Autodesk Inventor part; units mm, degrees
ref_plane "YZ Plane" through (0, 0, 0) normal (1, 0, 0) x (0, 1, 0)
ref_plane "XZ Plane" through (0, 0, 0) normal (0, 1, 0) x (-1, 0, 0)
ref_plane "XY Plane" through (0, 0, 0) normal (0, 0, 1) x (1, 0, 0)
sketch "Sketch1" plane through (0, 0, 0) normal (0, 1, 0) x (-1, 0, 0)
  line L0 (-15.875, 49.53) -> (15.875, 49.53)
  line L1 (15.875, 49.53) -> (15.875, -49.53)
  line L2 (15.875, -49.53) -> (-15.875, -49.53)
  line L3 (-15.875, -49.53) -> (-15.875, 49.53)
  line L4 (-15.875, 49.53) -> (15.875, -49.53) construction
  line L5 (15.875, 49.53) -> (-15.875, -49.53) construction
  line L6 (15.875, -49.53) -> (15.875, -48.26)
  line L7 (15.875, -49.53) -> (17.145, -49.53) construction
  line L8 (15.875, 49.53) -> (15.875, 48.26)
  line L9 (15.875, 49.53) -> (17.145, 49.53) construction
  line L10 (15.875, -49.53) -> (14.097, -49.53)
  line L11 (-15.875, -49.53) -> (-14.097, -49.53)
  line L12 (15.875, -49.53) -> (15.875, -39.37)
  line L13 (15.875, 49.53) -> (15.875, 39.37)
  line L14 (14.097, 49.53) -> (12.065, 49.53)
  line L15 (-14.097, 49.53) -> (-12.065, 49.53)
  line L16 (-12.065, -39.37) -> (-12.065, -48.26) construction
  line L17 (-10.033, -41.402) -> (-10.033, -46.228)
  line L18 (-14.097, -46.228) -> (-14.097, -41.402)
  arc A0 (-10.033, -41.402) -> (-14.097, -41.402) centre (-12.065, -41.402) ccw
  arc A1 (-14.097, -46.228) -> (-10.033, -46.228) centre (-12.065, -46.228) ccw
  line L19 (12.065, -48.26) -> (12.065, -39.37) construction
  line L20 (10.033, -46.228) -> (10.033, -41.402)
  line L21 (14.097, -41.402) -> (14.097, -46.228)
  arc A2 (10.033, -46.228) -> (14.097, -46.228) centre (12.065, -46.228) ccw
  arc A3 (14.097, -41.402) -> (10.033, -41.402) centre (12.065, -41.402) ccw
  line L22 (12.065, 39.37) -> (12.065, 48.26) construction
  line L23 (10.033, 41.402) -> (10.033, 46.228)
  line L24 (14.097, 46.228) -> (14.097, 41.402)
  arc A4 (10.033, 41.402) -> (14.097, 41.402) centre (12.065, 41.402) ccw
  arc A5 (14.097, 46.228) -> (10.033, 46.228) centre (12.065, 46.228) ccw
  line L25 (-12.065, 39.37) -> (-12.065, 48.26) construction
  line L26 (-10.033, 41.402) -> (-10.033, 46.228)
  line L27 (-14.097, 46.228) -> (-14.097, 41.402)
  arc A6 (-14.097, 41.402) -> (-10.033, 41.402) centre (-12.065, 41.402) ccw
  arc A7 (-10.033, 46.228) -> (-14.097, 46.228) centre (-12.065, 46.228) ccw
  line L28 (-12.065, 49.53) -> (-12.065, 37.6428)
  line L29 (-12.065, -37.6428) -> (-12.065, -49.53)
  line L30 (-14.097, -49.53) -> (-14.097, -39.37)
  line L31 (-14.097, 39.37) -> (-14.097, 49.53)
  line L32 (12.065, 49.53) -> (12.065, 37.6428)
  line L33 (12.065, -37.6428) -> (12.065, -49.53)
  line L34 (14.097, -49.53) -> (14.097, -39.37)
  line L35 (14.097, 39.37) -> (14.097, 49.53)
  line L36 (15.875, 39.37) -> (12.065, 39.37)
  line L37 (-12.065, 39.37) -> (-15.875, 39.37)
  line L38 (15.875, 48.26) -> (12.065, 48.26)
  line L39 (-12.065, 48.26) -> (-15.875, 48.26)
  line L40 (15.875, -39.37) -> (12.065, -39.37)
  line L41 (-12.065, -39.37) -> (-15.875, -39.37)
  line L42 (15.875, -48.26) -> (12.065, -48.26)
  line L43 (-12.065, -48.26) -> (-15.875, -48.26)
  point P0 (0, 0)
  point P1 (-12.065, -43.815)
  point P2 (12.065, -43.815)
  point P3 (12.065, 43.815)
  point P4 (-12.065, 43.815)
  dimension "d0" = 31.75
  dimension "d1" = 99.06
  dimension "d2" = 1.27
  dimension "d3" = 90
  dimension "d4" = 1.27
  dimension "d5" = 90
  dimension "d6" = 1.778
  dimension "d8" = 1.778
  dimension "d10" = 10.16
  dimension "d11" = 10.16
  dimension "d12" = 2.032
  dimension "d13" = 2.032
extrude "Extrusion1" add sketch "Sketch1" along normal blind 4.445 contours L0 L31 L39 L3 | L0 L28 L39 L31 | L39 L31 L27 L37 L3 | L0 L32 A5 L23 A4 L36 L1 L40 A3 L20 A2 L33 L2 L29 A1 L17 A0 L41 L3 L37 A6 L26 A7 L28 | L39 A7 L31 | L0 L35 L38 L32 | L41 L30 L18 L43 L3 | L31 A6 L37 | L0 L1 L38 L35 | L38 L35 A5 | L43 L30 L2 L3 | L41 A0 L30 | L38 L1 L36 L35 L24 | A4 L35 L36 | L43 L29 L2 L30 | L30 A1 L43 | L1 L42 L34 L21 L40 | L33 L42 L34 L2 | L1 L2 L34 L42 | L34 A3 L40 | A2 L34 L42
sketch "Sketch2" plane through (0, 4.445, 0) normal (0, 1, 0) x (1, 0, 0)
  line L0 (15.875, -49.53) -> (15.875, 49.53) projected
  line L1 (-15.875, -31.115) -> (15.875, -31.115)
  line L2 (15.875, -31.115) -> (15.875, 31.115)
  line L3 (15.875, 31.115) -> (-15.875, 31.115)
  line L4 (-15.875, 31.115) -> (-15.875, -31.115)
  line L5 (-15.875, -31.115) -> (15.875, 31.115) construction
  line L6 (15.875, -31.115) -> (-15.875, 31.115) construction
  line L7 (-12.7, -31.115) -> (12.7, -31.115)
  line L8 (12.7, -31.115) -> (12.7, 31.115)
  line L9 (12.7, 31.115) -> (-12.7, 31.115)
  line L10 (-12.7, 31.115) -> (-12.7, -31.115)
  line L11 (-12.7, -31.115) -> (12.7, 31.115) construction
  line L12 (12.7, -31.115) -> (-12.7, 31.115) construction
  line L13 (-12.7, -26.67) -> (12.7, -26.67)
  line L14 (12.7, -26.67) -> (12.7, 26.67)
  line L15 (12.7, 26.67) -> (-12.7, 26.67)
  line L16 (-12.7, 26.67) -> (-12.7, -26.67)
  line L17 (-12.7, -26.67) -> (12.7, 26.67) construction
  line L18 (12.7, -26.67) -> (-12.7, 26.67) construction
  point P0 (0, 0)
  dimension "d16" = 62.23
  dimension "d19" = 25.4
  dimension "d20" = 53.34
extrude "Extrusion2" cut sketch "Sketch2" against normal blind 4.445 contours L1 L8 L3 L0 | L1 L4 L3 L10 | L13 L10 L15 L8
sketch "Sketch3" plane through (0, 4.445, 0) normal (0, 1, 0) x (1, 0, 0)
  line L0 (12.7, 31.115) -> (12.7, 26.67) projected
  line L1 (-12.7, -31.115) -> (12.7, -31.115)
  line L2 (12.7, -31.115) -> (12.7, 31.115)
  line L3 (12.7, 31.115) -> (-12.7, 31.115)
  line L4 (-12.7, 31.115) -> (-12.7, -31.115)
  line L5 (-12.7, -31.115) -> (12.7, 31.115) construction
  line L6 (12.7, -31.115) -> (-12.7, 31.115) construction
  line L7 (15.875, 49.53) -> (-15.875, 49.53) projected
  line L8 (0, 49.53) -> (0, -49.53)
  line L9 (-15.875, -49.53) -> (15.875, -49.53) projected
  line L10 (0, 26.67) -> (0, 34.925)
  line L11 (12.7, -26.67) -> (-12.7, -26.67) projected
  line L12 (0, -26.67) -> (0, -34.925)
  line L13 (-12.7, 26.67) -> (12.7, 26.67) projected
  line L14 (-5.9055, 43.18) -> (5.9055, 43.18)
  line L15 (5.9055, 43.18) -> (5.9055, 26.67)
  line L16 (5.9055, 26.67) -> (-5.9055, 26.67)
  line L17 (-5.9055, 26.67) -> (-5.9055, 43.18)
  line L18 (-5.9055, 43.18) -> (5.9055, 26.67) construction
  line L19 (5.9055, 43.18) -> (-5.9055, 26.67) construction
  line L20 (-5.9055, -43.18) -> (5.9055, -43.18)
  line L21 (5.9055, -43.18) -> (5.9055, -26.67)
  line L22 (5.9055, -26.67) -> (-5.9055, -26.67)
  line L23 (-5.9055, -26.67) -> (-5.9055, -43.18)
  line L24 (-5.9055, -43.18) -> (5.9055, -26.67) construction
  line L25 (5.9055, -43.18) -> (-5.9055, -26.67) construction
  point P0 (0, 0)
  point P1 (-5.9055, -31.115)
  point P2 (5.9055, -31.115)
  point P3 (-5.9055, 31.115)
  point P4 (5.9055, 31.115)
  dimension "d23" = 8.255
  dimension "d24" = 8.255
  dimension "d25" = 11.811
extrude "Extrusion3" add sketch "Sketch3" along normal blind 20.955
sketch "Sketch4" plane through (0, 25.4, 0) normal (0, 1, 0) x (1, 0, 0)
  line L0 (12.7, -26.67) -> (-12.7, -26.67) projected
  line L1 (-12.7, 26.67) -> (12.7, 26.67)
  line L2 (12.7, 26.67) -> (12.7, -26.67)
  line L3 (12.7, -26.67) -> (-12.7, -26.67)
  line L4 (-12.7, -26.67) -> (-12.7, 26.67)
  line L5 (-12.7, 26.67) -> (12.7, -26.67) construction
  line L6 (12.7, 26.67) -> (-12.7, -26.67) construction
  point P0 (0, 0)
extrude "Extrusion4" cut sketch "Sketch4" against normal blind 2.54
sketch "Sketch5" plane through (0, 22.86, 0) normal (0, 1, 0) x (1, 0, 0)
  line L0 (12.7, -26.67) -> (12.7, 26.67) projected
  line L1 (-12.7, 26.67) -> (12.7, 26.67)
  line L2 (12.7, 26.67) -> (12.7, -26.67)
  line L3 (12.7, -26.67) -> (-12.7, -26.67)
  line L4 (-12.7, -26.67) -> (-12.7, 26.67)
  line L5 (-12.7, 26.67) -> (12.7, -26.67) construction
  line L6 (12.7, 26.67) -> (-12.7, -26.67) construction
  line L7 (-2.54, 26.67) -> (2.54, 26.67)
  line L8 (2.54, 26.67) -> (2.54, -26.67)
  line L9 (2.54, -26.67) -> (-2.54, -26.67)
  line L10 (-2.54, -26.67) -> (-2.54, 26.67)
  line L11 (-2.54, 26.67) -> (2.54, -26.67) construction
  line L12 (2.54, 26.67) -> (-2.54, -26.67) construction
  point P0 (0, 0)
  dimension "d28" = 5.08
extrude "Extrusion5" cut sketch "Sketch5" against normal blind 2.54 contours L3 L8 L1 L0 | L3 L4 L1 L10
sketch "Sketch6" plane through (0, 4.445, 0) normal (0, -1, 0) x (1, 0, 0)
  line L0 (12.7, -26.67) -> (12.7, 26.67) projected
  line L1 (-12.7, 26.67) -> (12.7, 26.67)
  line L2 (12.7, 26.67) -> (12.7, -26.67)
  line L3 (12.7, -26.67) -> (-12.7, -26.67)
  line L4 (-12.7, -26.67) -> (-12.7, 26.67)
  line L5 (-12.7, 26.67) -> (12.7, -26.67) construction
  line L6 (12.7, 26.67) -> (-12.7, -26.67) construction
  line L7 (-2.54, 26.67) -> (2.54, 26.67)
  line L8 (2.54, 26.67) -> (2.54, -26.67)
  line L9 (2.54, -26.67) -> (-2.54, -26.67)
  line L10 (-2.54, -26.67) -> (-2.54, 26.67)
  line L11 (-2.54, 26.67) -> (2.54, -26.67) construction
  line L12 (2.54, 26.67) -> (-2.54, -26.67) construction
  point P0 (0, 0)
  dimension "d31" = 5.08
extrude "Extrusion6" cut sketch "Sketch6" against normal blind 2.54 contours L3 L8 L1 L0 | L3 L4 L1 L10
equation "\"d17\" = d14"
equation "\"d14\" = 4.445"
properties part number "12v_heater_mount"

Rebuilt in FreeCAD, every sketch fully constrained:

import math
import FreeCAD as App
import Part
import Sketcher
from FreeCAD import Vector
Q = App.Units.Quantity

doc = App.newDocument("Part")
body = doc.addObject("PartDesign::Body", "Body")
body.AllowCompound = True

# Sketch on XZ plane
sketch1 = body.newObject("Sketcher::SketchObject", "Sketch")
sketch1.AttachmentSupport = (doc.getObject("XZ_Plane"), [""])
sketch1.MapMode = "FlatFace"
sketch1.addGeometry([
    Part.LineSegment(Vector(15.9, 49.5, 0), Vector(15.9, -49.5, 0)),  # 0
    Part.LineSegment(Vector(15.9, -49.5, 0), Vector(-15.9, -49.5, 0)),  # 1
    Part.LineSegment(Vector(-15.9, -49.5, 0), Vector(-15.9, 49.5, 0)),  # 2
    Part.LineSegment(Vector(-15.9, 49.5, 0), Vector(15.9, 49.5, 0)),  # 3
    Part.LineSegment(Vector(14.1, 41.4, 0), Vector(14.1, 46.2, 0)),  # 4
    Part.ArcOfCircle(Part.Circle(Vector(12.1, 46.2, 0), Vector(0, 0, 1), 2), math.radians(0), math.radians(180)),  # 5
    Part.LineSegment(Vector(10, 46.2, 0), Vector(10, 41.4, 0)),  # 6
    Part.ArcOfCircle(Part.Circle(Vector(12.1, 41.4, 0), Vector(0, 0, 1), 2), math.radians(180), math.radians(360)),  # 7
    Part.ArcOfCircle(Part.Circle(Vector(-12.1, 46.2, 0), Vector(0, 0, 1), 2), math.radians(0), math.radians(180)),  # 8
    Part.LineSegment(Vector(-14.1, 46.2, 0), Vector(-14.1, 41.4, 0)),  # 9
    Part.ArcOfCircle(Part.Circle(Vector(-12.1, 41.4, 0), Vector(0, 0, 1), 2), math.radians(180), math.radians(360)),  # 10
    Part.LineSegment(Vector(-10, 41.4, 0), Vector(-10, 46.2, 0)),  # 11
    Part.ArcOfCircle(Part.Circle(Vector(-12.1, -41.4, 0), Vector(0, 0, 1), 2), math.radians(0), math.radians(180)),  # 12
    Part.LineSegment(Vector(-14.1, -41.4, 0), Vector(-14.1, -46.2, 0)),  # 13
    Part.ArcOfCircle(Part.Circle(Vector(-12.1, -46.2, 0), Vector(0, 0, 1), 2), math.radians(180), math.radians(360)),  # 14
    Part.LineSegment(Vector(-10, -46.2, 0), Vector(-10, -41.4, 0)),  # 15
    Part.ArcOfCircle(Part.Circle(Vector(12.1, -46.2, 0), Vector(0, 0, 1), 2), math.radians(180), math.radians(360)),  # 16
    Part.LineSegment(Vector(14.1, -46.2, 0), Vector(14.1, -41.4, 0)),  # 17
    Part.ArcOfCircle(Part.Circle(Vector(12.1, -41.4, 0), Vector(0, 0, 1), 2), math.radians(0), math.radians(180)),  # 18
    Part.LineSegment(Vector(10, -41.4, 0), Vector(10, -46.2, 0)),  # 19
], False)
sketch1.addConstraint([
    Sketcher.Constraint("Coincident", 0, 2, 1, 1),
    Sketcher.Constraint("Coincident", 1, 2, 2, 1),
    Sketcher.Constraint("Coincident", 2, 2, 3, 1),
    Sketcher.Constraint("Coincident", 3, 2, 0, 1),
    Sketcher.Constraint("Tangent", 4, 2, 5, 1),
    Sketcher.Constraint("Tangent", 5, 2, 6, 1),
    Sketcher.Constraint("Tangent", 6, 2, 7, 1),
    Sketcher.Constraint("Tangent", 7, 2, 4, 1),
    Sketcher.Constraint("Tangent", 8, 2, 9, 1),
    Sketcher.Constraint("Tangent", 9, 2, 10, 1),
    Sketcher.Constraint("Tangent", 10, 2, 11, 1),
    Sketcher.Constraint("Tangent", 11, 2, 8, 1),
    Sketcher.Constraint("Tangent", 12, 2, 13, 1),
    Sketcher.Constraint("Tangent", 13, 2, 14, 1),
    Sketcher.Constraint("Tangent", 14, 2, 15, 1),
    Sketcher.Constraint("Tangent", 15, 2, 12, 1),
    Sketcher.Constraint("Tangent", 16, 2, 17, 1),
    Sketcher.Constraint("Tangent", 17, 2, 18, 1),
    Sketcher.Constraint("Tangent", 18, 2, 19, 1),
    Sketcher.Constraint("Tangent", 19, 2, 16, 1),
    Sketcher.Constraint("Vertical", 0),
    Sketcher.Constraint("Horizontal", 1),
    Sketcher.Constraint("Vertical", 2),
    Sketcher.Constraint("Horizontal", 3),
    Sketcher.Constraint("Vertical", 4),
    Sketcher.Constraint("Vertical", 6),
    Sketcher.Constraint("Vertical", 9),
    Sketcher.Constraint("Vertical", 11),
    Sketcher.Constraint("Vertical", 13),
    Sketcher.Constraint("Vertical", 15),
    Sketcher.Constraint("Vertical", 17),
    Sketcher.Constraint("Vertical", 19),
    Sketcher.Constraint("Equal", 7, 8),
    Sketcher.Constraint("Equal", 10, 12),
    Sketcher.Constraint("Equal", 14, 16),
    Sketcher.Constraint("Symmetric", 7, 3, 12, 3, -1, 1),
    Sketcher.Constraint("Symmetric", 8, 3, 16, 3, -1, 1),
    Sketcher.Constraint("Symmetric", 0, 2, 2, 2, -1, 1),
    Sketcher.Constraint("Symmetric", 5, 3, 8, 3, -2),
    Sketcher.Constraint("Horizontal", 7, 3, 10, 3),
    Sketcher.Constraint("Horizontal", 14, 3, 16, 3),
    Sketcher.Constraint("Horizontal", 12, 3, 18, 3),
    Sketcher.Constraint("Radius", 5, Q("0.08 in")),
    Sketcher.Constraint("DistanceY", 0, 2, 0, 1, Q("3.9 in")),
    Sketcher.Constraint("DistanceX", 1, 2, 1, 1, Q("1.25 in")),
    Sketcher.Constraint("DistanceX", 4, 2, 3, 2, Q("0.07 in")),
    Sketcher.Constraint("DistanceY", 4, 1, 4, 2, Q("0.19 in")),
    Sketcher.Constraint("DistanceY", -1, 1, 5, 3, Q("1.82 in")),
])
pad1 = body.newObject("PartDesign::Pad", "Pad")
pad1.Profile = sketch1
pad1.Length = Q("0.175 in")
pad1.Reversed = True

# Sketch on XZ plane
sketch2 = body.newObject("Sketcher::SketchObject", "Sketch001")
sketch2.AttachmentSupport = (doc.getObject("XZ_Plane"), [""])
sketch2.MapMode = "FlatFace"
sketch2.AttachmentOffset = App.Placement(Vector(0, 0, -0.175 * 25.4), App.Rotation())
sketch2.addGeometry([
    Part.LineSegment(Vector(12.7, 31.1, 0), Vector(15.9, 31.1, 0)),  # 0
    Part.LineSegment(Vector(15.9, 31.1, 0), Vector(15.9, -31.1, 0)),  # 1
    Part.LineSegment(Vector(15.9, -31.1, 0), Vector(12.7, -31.1, 0)),  # 2
    Part.LineSegment(Vector(12.7, -31.1, 0), Vector(12.7, -26.7, 0)),  # 3
    Part.LineSegment(Vector(12.7, -26.7, 0), Vector(-12.7, -26.7, 0)),  # 4
    Part.LineSegment(Vector(-12.7, -26.7, 0), Vector(-12.7, -31.1, 0)),  # 5
    Part.LineSegment(Vector(-12.7, -31.1, 0), Vector(-15.9, -31.1, 0)),  # 6
    Part.LineSegment(Vector(-15.9, -31.1, 0), Vector(-15.9, 31.1, 0)),  # 7
    Part.LineSegment(Vector(-15.9, 31.1, 0), Vector(-12.7, 31.1, 0)),  # 8
    Part.LineSegment(Vector(-12.7, 31.1, 0), Vector(-12.7, 26.7, 0)),  # 9
    Part.LineSegment(Vector(-12.7, 26.7, 0), Vector(12.7, 26.7, 0)),  # 10
    Part.LineSegment(Vector(12.7, 26.7, 0), Vector(12.7, 31.1, 0)),  # 11
], False)
sketch2.addConstraint([
    Sketcher.Constraint("Coincident", 0, 2, 1, 1),
    Sketcher.Constraint("Coincident", 1, 2, 2, 1),
    Sketcher.Constraint("Coincident", 2, 2, 3, 1),
    Sketcher.Constraint("Coincident", 3, 2, 4, 1),
    Sketcher.Constraint("Coincident", 4, 2, 5, 1),
    Sketcher.Constraint("Coincident", 5, 2, 6, 1),
    Sketcher.Constraint("Coincident", 6, 2, 7, 1),
    Sketcher.Constraint("Coincident", 7, 2, 8, 1),
    Sketcher.Constraint("Coincident", 8, 2, 9, 1),
    Sketcher.Constraint("Coincident", 9, 2, 10, 1),
    Sketcher.Constraint("Coincident", 10, 2, 11, 1),
    Sketcher.Constraint("Coincident", 11, 2, 0, 1),
    Sketcher.Constraint("Horizontal", 0),
    Sketcher.Constraint("Vertical", 1),
    Sketcher.Constraint("Horizontal", 2),
    Sketcher.Constraint("Vertical", 3),
    Sketcher.Constraint("Horizontal", 4),
    Sketcher.Constraint("Vertical", 5),
    Sketcher.Constraint("Horizontal", 6),
    Sketcher.Constraint("Vertical", 7),
    Sketcher.Constraint("Horizontal", 8),
    Sketcher.Constraint("Vertical", 9),
    Sketcher.Constraint("Horizontal", 10),
    Sketcher.Constraint("Vertical", 11),
    Sketcher.Constraint("Symmetric", 0, 2, 6, 2, -1, 1),
    Sketcher.Constraint("Symmetric", 2, 2, 8, 2, -1, 1),
    Sketcher.Constraint("Symmetric", 4, 2, 10, 2, -1, 1),
    Sketcher.Constraint("Symmetric", 2, 2, 5, 2, -2),
    Sketcher.Constraint("DistanceX", 4, 2, 4, 1, Q("1 in")),
    Sketcher.Constraint("DistanceY", 1, 2, 1, 1, Q("2.45 in")),
    Sketcher.Constraint("DistanceY", 4, 2, 9, 2, Q("2.1 in")),
    Sketcher.Constraint("DistanceX", 0, 1, 0, 2, Q("0.125 in")),
])
pocket1 = body.newObject("PartDesign::Pocket", "Pocket")
pocket1.Profile = sketch2
pocket1.Length = Q("0.175 in")
pocket1.Reversed = True

# Sketch on XZ plane
sketch3 = body.newObject("Sketcher::SketchObject", "Sketch002")
sketch3.AttachmentSupport = (doc.getObject("XZ_Plane"), [""])
sketch3.MapMode = "FlatFace"
sketch3.AttachmentOffset = App.Placement(Vector(0, 0, -0.175 * 25.4), App.Rotation())
sketch3.addGeometry([
    Part.LineSegment(Vector(13, -31, 0), Vector(6, -31, 0)),  # 0
    Part.LineSegment(Vector(6, -31, 0), Vector(6, -43, 0)),  # 1
    Part.LineSegment(Vector(6, -43, 0), Vector(-6, -43, 0)),  # 2
    Part.LineSegment(Vector(-6, -43, 0), Vector(-6, -31, 0)),  # 3
    Part.LineSegment(Vector(-6, -31, 0), Vector(-13, -31, 0)),  # 4
    Part.LineSegment(Vector(-13, -31, 0), Vector(-13, 31, 0)),  # 5
    Part.LineSegment(Vector(-13, 31, 0), Vector(-6, 31, 0)),  # 6
    Part.LineSegment(Vector(-6, 31, 0), Vector(-6, 43, 0)),  # 7
    Part.LineSegment(Vector(-6, 43, 0), Vector(6, 43, 0)),  # 8
    Part.LineSegment(Vector(6, 43, 0), Vector(6, 31, 0)),  # 9
    Part.LineSegment(Vector(6, 31, 0), Vector(13, 31, 0)),  # 10
    Part.LineSegment(Vector(13, 31, 0), Vector(13, -31, 0)),  # 11
], False)
sketch3.addConstraint([
    Sketcher.Constraint("Coincident", 0, 2, 1, 1),
    Sketcher.Constraint("Coincident", 1, 2, 2, 1),
    Sketcher.Constraint("Coincident", 2, 2, 3, 1),
    Sketcher.Constraint("Coincident", 3, 2, 4, 1),
    Sketcher.Constraint("Coincident", 4, 2, 5, 1),
    Sketcher.Constraint("Coincident", 5, 2, 6, 1),
    Sketcher.Constraint("Coincident", 6, 2, 7, 1),
    Sketcher.Constraint("Coincident", 7, 2, 8, 1),
    Sketcher.Constraint("Coincident", 8, 2, 9, 1),
    Sketcher.Constraint("Coincident", 9, 2, 10, 1),
    Sketcher.Constraint("Coincident", 10, 2, 11, 1),
    Sketcher.Constraint("Coincident", 11, 2, 0, 1),
    Sketcher.Constraint("Horizontal", 0),
    Sketcher.Constraint("Vertical", 1),
    Sketcher.Constraint("Horizontal", 2),
    Sketcher.Constraint("Vertical", 3),
    Sketcher.Constraint("Horizontal", 4),
    Sketcher.Constraint("Vertical", 5),
    Sketcher.Constraint("Horizontal", 6),
    Sketcher.Constraint("Vertical", 7),
    Sketcher.Constraint("Horizontal", 8),
    Sketcher.Constraint("Vertical", 9),
    Sketcher.Constraint("Horizontal", 10),
    Sketcher.Constraint("Vertical", 11),
    Sketcher.Constraint("Symmetric", 0, 2, 6, 2, -1, 1),
    Sketcher.Constraint("Symmetric", 2, 2, 8, 2, -1, 1),
    Sketcher.Constraint("Symmetric", 4, 2, 10, 2, -1, 1),
    Sketcher.Constraint("Symmetric", 0, 2, 3, 2, -2),
    Sketcher.Constraint("DistanceX", 2, 2, 2, 1, Q("0.465 in")),
    Sketcher.Constraint("DistanceX", 5, 2, 10, 2, Q("1 in")),
    Sketcher.Constraint("DistanceY", 5, 1, 5, 2, Q("2.45 in")),
    Sketcher.Constraint("DistanceY", 1, 2, -1, 1, Q("1.7 in")),
])
pad2 = body.newObject("PartDesign::Pad", "Pad001")
pad2.Profile = sketch3
pad2.Length = Q("0.825 in")
pad2.Reversed = True

# Sketch on XZ plane
sketch4 = body.newObject("Sketcher::SketchObject", "Sketch003")
sketch4.AttachmentSupport = (doc.getObject("XZ_Plane"), [""])
sketch4.MapMode = "FlatFace"
sketch4.AttachmentOffset = App.Placement(Vector(0, 0, -1 * 25.4), App.Rotation())
sketch4.addGeometry([
    Part.LineSegment(Vector(-13, 27, 0), Vector(13, 27, 0)),
    Part.LineSegment(Vector(13, 27, 0), Vector(13, -27, 0)),
    Part.LineSegment(Vector(13, -27, 0), Vector(-13, -27, 0)),
    Part.LineSegment(Vector(-13, -27, 0), Vector(-13, 27, 0)),
], False)
sketch4.addConstraint([
    Sketcher.Constraint("Coincident", 0, 2, 1, 1),
    Sketcher.Constraint("Coincident", 1, 2, 2, 1),
    Sketcher.Constraint("Coincident", 2, 2, 3, 1),
    Sketcher.Constraint("Coincident", 3, 2, 0, 1),
    Sketcher.Constraint("Horizontal", 0),
    Sketcher.Constraint("Vertical", 1),
    Sketcher.Constraint("Horizontal", 2),
    Sketcher.Constraint("Vertical", 3),
    Sketcher.Constraint("Symmetric", 0, 2, 2, 2, -1, 1),
    Sketcher.Constraint("DistanceX", 0, 1, 0, 2, Q("1 in")),
    Sketcher.Constraint("DistanceY", 1, 2, 1, 1, Q("2.1 in")),
])
pocket2 = body.newObject("PartDesign::Pocket", "Pocket001")
pocket2.Profile = sketch4
pocket2.Length = Q("0.1 in")
pocket2.Reversed = True

# Sketch on XZ plane
sketch5 = body.newObject("Sketcher::SketchObject", "Sketch004")
sketch5.AttachmentSupport = (doc.getObject("XZ_Plane"), [""])
sketch5.MapMode = "FlatFace"
sketch5.AttachmentOffset = App.Placement(Vector(0, 0, -0.9 * 25.4), App.Rotation())
sketch5.addGeometry([
    Part.LineSegment(Vector(3, 27, 0), Vector(13, 27, 0)),  # 0
    Part.LineSegment(Vector(13, 27, 0), Vector(13, -27, 0)),  # 1
    Part.LineSegment(Vector(13, -27, 0), Vector(3, -27, 0)),  # 2
    Part.LineSegment(Vector(3, -27, 0), Vector(3, 27, 0)),  # 3
    Part.LineSegment(Vector(-13, 27, 0), Vector(-3, 27, 0)),  # 4
    Part.LineSegment(Vector(-3, 27, 0), Vector(-3, -27, 0)),  # 5
    Part.LineSegment(Vector(-3, -27, 0), Vector(-13, -27, 0)),  # 6
    Part.LineSegment(Vector(-13, -27, 0), Vector(-13, 27, 0)),  # 7
], False)
sketch5.addConstraint([
    Sketcher.Constraint("Coincident", 0, 2, 1, 1),
    Sketcher.Constraint("Coincident", 1, 2, 2, 1),
    Sketcher.Constraint("Coincident", 2, 2, 3, 1),
    Sketcher.Constraint("Coincident", 3, 2, 0, 1),
    Sketcher.Constraint("Coincident", 4, 2, 5, 1),
    Sketcher.Constraint("Coincident", 5, 2, 6, 1),
    Sketcher.Constraint("Coincident", 6, 2, 7, 1),
    Sketcher.Constraint("Coincident", 7, 2, 4, 1),
    Sketcher.Constraint("Horizontal", 0),
    Sketcher.Constraint("Vertical", 1),
    Sketcher.Constraint("Horizontal", 2),
    Sketcher.Constraint("Vertical", 3),
    Sketcher.Constraint("Horizontal", 4),
    Sketcher.Constraint("Vertical", 5),
    Sketcher.Constraint("Horizontal", 6),
    Sketcher.Constraint("Vertical", 7),
    Sketcher.Constraint("Symmetric", 2, 2, 4, 2, -1, 1),
    Sketcher.Constraint("Symmetric", 0, 2, 6, 2, -1, 1),
    Sketcher.Constraint("Horizontal", 3, 2, 4, 2),
    Sketcher.Constraint("DistanceX", 4, 2, 3, 2, Q("0.2 in")),
    Sketcher.Constraint("DistanceX", 0, 1, 0, 2, Q("0.4 in")),
    Sketcher.Constraint("DistanceY", 1, 2, 1, 1, Q("2.1 in")),
])
pocket3 = body.newObject("PartDesign::Pocket", "Pocket002")
pocket3.Profile = sketch5
pocket3.Length = Q("0.1 in")
pocket3.Reversed = True

# Sketch on XZ plane
sketch6 = body.newObject("Sketcher::SketchObject", "Sketch005")
sketch6.AttachmentSupport = (doc.getObject("XZ_Plane"), [""])
sketch6.MapMode = "FlatFace"
sketch6.AttachmentOffset = App.Placement(Vector(0, 0, -0.175 * 25.4), App.Rotation())
sketch6.addGeometry([
    Part.LineSegment(Vector(3, -27, 0), Vector(13, -27, 0)),  # 0
    Part.LineSegment(Vector(13, -27, 0), Vector(13, 27, 0)),  # 1
    Part.LineSegment(Vector(13, 27, 0), Vector(3, 27, 0)),  # 2
    Part.LineSegment(Vector(3, 27, 0), Vector(3, -27, 0)),  # 3
    Part.LineSegment(Vector(-13, -27, 0), Vector(-3, -27, 0)),  # 4
    Part.LineSegment(Vector(-3, -27, 0), Vector(-3, 27, 0)),  # 5
    Part.LineSegment(Vector(-3, 27, 0), Vector(-13, 27, 0)),  # 6
    Part.LineSegment(Vector(-13, 27, 0), Vector(-13, -27, 0)),  # 7
], False)
sketch6.addConstraint([
    Sketcher.Constraint("Coincident", 0, 2, 1, 1),
    Sketcher.Constraint("Coincident", 1, 2, 2, 1),
    Sketcher.Constraint("Coincident", 2, 2, 3, 1),
    Sketcher.Constraint("Coincident", 3, 2, 0, 1),
    Sketcher.Constraint("Coincident", 4, 2, 5, 1),
    Sketcher.Constraint("Coincident", 5, 2, 6, 1),
    Sketcher.Constraint("Coincident", 6, 2, 7, 1),
    Sketcher.Constraint("Coincident", 7, 2, 4, 1),
    Sketcher.Constraint("Horizontal", 0),
    Sketcher.Constraint("Vertical", 1),
    Sketcher.Constraint("Horizontal", 2),
    Sketcher.Constraint("Vertical", 3),
    Sketcher.Constraint("Horizontal", 4),
    Sketcher.Constraint("Vertical", 5),
    Sketcher.Constraint("Horizontal", 6),
    Sketcher.Constraint("Vertical", 7),
    Sketcher.Constraint("Symmetric", 2, 2, 4, 2, -1, 1),
    Sketcher.Constraint("Symmetric", 0, 2, 6, 2, -1, 1),
    Sketcher.Constraint("Horizontal", 3, 2, 4, 2),
    Sketcher.Constraint("DistanceX", 4, 2, 3, 2, Q("0.2 in")),
    Sketcher.Constraint("DistanceX", 0, 1, 0, 2, Q("0.4 in")),
    Sketcher.Constraint("DistanceY", 1, 1, 1, 2, Q("2.1 in")),
])
pocket4 = body.newObject("PartDesign::Pocket", "Pocket003")
pocket4.Profile = sketch6
pocket4.Length = Q("0.1 in")

doc.recompute()
